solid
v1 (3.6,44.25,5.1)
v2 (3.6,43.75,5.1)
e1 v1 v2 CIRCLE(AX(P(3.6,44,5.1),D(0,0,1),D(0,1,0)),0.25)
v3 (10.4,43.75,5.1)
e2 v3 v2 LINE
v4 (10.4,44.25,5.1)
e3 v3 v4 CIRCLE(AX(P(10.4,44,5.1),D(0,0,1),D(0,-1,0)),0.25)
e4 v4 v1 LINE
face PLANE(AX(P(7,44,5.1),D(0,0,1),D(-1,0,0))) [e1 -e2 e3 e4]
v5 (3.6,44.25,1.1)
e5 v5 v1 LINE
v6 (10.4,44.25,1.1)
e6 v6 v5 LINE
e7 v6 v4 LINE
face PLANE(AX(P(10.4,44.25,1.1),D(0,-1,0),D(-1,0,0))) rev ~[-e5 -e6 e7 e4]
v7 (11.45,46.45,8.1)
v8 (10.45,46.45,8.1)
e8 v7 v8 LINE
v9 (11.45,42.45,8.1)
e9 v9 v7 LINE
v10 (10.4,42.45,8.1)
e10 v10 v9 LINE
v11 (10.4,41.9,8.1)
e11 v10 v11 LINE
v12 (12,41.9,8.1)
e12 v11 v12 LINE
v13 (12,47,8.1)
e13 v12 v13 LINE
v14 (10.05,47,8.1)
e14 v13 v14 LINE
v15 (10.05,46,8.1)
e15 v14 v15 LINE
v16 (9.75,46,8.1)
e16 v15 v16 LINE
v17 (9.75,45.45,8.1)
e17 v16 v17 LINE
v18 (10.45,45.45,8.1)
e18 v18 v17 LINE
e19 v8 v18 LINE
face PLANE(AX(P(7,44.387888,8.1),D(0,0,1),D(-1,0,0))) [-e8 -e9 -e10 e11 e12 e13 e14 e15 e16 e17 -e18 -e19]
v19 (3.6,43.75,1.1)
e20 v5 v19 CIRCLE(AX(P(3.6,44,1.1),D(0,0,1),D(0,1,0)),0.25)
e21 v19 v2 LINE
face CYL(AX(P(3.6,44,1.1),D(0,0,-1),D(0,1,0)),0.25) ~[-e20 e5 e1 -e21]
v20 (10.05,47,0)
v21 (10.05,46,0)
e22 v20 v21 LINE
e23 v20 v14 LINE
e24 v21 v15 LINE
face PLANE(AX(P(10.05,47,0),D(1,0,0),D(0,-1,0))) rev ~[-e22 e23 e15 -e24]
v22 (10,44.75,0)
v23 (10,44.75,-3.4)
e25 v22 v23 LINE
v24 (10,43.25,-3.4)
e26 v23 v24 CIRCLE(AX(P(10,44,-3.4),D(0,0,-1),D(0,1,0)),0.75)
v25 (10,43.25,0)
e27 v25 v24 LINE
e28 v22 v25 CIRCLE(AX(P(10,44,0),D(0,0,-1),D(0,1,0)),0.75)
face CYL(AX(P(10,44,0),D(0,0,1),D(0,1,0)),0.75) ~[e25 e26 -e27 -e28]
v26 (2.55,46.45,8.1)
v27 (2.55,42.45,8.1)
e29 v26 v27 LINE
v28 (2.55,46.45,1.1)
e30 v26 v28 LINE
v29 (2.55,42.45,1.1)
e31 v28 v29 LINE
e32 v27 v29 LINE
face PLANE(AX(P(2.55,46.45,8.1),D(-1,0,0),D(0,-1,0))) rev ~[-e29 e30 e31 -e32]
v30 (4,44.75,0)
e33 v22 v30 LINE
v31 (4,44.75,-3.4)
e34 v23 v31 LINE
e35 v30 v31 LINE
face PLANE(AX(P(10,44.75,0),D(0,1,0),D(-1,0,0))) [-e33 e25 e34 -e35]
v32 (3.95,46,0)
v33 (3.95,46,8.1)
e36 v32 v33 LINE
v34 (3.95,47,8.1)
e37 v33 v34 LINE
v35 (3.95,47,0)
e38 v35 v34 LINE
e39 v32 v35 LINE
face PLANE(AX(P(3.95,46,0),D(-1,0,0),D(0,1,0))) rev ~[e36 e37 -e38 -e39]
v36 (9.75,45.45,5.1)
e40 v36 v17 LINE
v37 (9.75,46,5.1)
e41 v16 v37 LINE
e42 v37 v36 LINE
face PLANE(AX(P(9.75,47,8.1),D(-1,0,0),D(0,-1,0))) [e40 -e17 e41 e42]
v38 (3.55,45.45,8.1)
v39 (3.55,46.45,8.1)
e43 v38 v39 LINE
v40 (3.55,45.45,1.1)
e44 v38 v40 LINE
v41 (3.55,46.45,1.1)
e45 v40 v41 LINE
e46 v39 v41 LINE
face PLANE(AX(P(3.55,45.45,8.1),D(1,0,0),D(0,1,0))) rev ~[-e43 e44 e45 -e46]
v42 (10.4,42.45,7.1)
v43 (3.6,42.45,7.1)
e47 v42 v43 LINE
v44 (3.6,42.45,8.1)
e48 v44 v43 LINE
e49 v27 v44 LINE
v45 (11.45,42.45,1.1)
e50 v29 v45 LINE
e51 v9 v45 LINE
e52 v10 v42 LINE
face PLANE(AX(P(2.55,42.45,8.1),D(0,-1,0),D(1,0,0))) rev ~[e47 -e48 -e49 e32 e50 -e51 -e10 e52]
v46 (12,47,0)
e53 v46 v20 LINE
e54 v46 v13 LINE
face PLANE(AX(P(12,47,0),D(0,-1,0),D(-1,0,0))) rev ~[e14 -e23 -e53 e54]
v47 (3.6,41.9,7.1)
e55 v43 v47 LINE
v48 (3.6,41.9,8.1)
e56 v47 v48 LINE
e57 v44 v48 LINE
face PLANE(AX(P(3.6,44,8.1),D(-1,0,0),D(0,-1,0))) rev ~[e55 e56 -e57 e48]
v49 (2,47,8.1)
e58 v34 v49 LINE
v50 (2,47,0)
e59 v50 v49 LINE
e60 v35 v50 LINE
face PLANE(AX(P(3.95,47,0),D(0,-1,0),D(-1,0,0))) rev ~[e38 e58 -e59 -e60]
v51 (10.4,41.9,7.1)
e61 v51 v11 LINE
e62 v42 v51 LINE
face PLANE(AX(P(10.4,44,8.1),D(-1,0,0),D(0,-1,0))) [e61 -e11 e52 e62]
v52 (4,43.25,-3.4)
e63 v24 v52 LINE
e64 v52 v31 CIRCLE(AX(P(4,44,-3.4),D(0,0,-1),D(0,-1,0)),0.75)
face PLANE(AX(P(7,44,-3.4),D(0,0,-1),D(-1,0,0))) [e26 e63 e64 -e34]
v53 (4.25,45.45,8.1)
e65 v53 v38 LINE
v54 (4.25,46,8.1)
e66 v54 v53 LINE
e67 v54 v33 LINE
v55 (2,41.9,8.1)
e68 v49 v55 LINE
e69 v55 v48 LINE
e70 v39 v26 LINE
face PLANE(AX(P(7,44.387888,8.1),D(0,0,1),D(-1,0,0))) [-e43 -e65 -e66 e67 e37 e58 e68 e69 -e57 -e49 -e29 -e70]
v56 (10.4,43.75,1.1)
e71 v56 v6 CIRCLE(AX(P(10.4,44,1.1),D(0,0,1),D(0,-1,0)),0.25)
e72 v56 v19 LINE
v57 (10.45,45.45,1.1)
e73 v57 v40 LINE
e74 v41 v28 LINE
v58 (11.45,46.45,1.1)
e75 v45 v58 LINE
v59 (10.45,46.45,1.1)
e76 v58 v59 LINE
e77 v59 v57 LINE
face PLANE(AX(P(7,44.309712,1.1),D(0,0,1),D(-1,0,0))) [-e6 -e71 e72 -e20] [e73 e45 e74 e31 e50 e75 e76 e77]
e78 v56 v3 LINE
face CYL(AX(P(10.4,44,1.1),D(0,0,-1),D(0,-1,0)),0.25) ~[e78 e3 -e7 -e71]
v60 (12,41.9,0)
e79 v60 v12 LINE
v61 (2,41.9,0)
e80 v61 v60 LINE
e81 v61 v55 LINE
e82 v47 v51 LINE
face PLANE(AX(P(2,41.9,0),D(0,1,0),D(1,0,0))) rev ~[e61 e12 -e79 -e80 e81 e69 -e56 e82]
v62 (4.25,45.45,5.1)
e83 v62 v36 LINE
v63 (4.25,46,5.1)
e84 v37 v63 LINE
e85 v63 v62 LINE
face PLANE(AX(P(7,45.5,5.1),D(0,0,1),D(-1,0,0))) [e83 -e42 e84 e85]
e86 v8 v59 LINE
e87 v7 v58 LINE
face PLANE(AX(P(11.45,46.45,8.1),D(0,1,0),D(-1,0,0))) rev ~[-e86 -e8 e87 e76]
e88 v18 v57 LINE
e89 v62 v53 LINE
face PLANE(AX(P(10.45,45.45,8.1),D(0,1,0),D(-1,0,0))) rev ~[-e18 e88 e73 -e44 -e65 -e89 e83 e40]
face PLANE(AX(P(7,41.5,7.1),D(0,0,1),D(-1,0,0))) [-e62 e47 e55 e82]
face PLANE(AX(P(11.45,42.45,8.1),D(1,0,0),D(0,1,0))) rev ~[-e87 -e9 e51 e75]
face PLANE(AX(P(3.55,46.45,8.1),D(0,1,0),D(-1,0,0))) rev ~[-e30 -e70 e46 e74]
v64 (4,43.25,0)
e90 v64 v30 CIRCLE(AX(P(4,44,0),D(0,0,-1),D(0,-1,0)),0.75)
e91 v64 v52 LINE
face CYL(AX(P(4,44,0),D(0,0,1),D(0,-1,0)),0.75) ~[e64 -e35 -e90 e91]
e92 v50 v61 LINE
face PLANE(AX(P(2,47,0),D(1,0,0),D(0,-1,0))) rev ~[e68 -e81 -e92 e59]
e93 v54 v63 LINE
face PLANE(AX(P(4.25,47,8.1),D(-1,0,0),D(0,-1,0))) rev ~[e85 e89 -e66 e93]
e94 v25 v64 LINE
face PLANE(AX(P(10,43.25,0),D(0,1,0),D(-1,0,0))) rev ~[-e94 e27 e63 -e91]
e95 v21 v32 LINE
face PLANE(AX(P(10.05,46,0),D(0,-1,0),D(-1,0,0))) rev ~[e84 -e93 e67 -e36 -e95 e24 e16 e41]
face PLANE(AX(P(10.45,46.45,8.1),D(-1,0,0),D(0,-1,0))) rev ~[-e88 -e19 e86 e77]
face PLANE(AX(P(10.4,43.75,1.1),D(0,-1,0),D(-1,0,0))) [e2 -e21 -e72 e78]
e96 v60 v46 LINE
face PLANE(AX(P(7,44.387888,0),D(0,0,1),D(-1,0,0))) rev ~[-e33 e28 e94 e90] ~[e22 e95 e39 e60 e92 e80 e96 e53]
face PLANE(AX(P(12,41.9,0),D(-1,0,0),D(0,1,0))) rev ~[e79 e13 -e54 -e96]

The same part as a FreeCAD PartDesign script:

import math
import FreeCAD as App
import Part
import Sketcher
from FreeCAD import Vector

doc = App.newDocument("Part")
params = doc.addObject("Spreadsheet::Sheet", "Params")
for row, (alias, value) in enumerate([
    ("sketch1_width", "10 mm"),
    ("sketch1_height", "1 mm"),
    ("sketch1_width2", "6.1 mm"),
    ("sketch1_height2", "5.1 mm"),
    ("pad1_length", "8.1 mm"),
    ("sketch2_width", "1 mm"),
    ("sketch2_height", "4 mm"),
    ("sketch2_width2", "6.9 mm"),
    ("pocket1_length", "7 mm"),
    ("sketch3_height", "5 mm"),
    ("sketch3_width", "6.8 mm"),
    ("pocket2_length", "1 mm"),
    ("sketch4_height", "3 mm"),
    ("sketch4_width", "5.5 mm"),
    ("pocket3_length", "3 mm"),
    ("sketch5_radius", "0.25 mm"),
    ("sketch5_width", "6.8 mm"),
    ("pad2_length", "4 mm"),
    ("sketch6_width", "6 mm"),
    ("sketch6_radius", "0.75 mm"),
    ("pad3_length", "3.4 mm"),
], start=1):
    params.set(f"A{row}", alias)
    params.set(f"B{row}", "=" + value)
    params.setAlias(f"B{row}", alias)

body = doc.addObject("PartDesign::Body", "Body")

sketch1 = body.newObject("Sketcher::SketchObject", "Sketch")
sketch1.AttachmentSupport = (doc.getObject("XY_Plane"), [""])
sketch1.MapMode = "FlatFace"
sketch1.addGeometry([
    Part.LineSegment(Vector(-5, 0, 0), Vector(-3, 0, 0)),
    Part.LineSegment(Vector(-3, 0, 0), Vector(-3, 1, 0)),
    Part.LineSegment(Vector(-3, 1, 0), Vector(3, 1, 0)),
    Part.LineSegment(Vector(3, 1, 0), Vector(3, 0, 0)),
    Part.LineSegment(Vector(3, 0, 0), Vector(5, 0, 0)),
    Part.LineSegment(Vector(5, 0, 0), Vector(5, 5.1, 0)),
    Part.LineSegment(Vector(5, 5.1, 0), Vector(-5, 5.1, 0)),
    Part.LineSegment(Vector(-5, 5.1, 0), Vector(-5, 0, 0)),
], False)
sketch1.addConstraint([
    Sketcher.Constraint("Coincident", 0, 2, 1, 1),
    Sketcher.Constraint("Coincident", 1, 2, 2, 1),
    Sketcher.Constraint("Coincident", 2, 2, 3, 1),
    Sketcher.Constraint("Coincident", 3, 2, 4, 1),
    Sketcher.Constraint("Coincident", 4, 2, 5, 1),
    Sketcher.Constraint("Coincident", 5, 2, 6, 1),
    Sketcher.Constraint("Coincident", 6, 2, 7, 1),
    Sketcher.Constraint("Coincident", 7, 2, 0, 1),
    Sketcher.Constraint("Horizontal", 0),
    Sketcher.Constraint("Vertical", 1),
    Sketcher.Constraint("Horizontal", 2),
    Sketcher.Constraint("Vertical", 3),
    Sketcher.Constraint("Horizontal", 4),
    Sketcher.Constraint("Vertical", 5),
    Sketcher.Constraint("Horizontal", 6),
    Sketcher.Constraint("Vertical", 7),
    Sketcher.Constraint("Symmetric", 0, 2, 3, 2, -1, 1),
    Sketcher.Constraint("Symmetric", 4, 2, 7, 2, -2),
    Sketcher.Constraint("DistanceX", 6, 2, 6, 1, 10.0),
    Sketcher.Constraint("DistanceY", 1, 1, 1, 2, 1.0),
    Sketcher.Constraint("DistanceX", 2, 1, 2, 2, 6.1),
    Sketcher.Constraint("DistanceY", 5, 1, 5, 2, 5.1),
])
sketch1.setExpression("Constraints[18]", "Params.sketch1_width")
sketch1.setExpression("Constraints[19]", "Params.sketch1_height")
sketch1.setExpression("Constraints[20]", "Params.sketch1_width2")
sketch1.setExpression("Constraints[21]", "Params.sketch1_height2")
pad1 = body.newObject("PartDesign::Pad", "Pad")
pad1.Profile = sketch1
pad1.setExpression("Length", "Params.pad1_length")

sketch2 = body.newObject("Sketcher::SketchObject", "Sketch001")
sketch2.AttachmentSupport = (doc.getObject("XY_Plane"), [""])
sketch2.MapMode = "FlatFace"
sketch2.AttachmentOffset = App.Placement(Vector(0, 0, 8.1), App.Rotation())
sketch2.addGeometry([
    Part.LineSegment(Vector(-4.5, 0.6, 0), Vector(-3.5, 0.6, 0)),
    Part.LineSegment(Vector(-3.5, 0.6, 0), Vector(-3.5, 1.6, 0)),
    Part.LineSegment(Vector(-3.5, 1.6, 0), Vector(3.5, 1.6, 0)),
    Part.LineSegment(Vector(3.5, 1.6, 0), Vector(3.5, 0.6, 0)),
    Part.LineSegment(Vector(3.5, 0.6, 0), Vector(4.5, 0.6, 0)),
    Part.LineSegment(Vector(4.5, 0.6, 0), Vector(4.5, 4.5, 0)),
    Part.LineSegment(Vector(4.5, 4.5, 0), Vector(-4.5, 4.5, 0)),
    Part.LineSegment(Vector(-4.5, 4.5, 0), Vector(-4.5, 0.6, 0)),
], False)
sketch2.addConstraint([
    Sketcher.Constraint("Coincident", 0, 2, 1, 1),
    Sketcher.Constraint("Coincident", 1, 2, 2, 1),
    Sketcher.Constraint("Coincident", 2, 2, 3, 1),
    Sketcher.Constraint("Coincident", 3, 2, 4, 1),
    Sketcher.Constraint("Coincident", 4, 2, 5, 1),
    Sketcher.Constraint("Coincident", 5, 2, 6, 1),
    Sketcher.Constraint("Coincident", 6, 2, 7, 1),
    Sketcher.Constraint("Coincident", 7, 2, 0, 1),
    Sketcher.Constraint("Horizontal", 0),
    Sketcher.Constraint("Vertical", 1),
    Sketcher.Constraint("Horizontal", 2),
    Sketcher.Constraint("Vertical", 3),
    Sketcher.Constraint("Horizontal", 4),
    Sketcher.Constraint("Vertical", 5),
    Sketcher.Constraint("Horizontal", 6),
    Sketcher.Constraint("Vertical", 7),
    Sketcher.Constraint("Symmetric", 0, 2, 3, 2, -2),
    Sketcher.Constraint("Equal", 0, 4),
    Sketcher.Constraint("Equal", 4, 1),
    Sketcher.Constraint("DistanceX", 0, 1, 0, 2, 1.0),
    Sketcher.Constraint("DistanceY", 5, 1, 5, 2, 4.0),
    Sketcher.Constraint("DistanceX", 2, 1, 2, 2, 6.9),
    Sketcher.Constraint("DistanceY", -1, 1, 0, 2, 0.55),
])
sketch2.setExpression("Constraints[19]", "Params.sketch2_width")
sketch2.setExpression("Constraints[20]", "Params.sketch2_height")
sketch2.setExpression("Constraints[21]", "Params.sketch2_width2")
pocket1 = body.newObject("PartDesign::Pocket", "Pocket")
pocket1.Profile = sketch2
pocket1.setExpression("Length", "Params.pocket1_length")

sketch3 = body.newObject("Sketcher::SketchObject", "Sketch002")
sketch3.AttachmentSupport = (doc.getObject("XY_Plane"), [""])
sketch3.MapMode = "FlatFace"
sketch3.AttachmentOffset = App.Placement(Vector(0, 0, 8.1), App.Rotation())
sketch3.addGeometry([
    Part.LineSegment(Vector(-3, 8, 0), Vector(-3, 3, 0)),
    Part.LineSegment(Vector(-3, 3, 0), Vector(3, 3, 0)),
    Part.LineSegment(Vector(3, 3, 0), Vector(3, 8, 0)),
    Part.LineSegment(Vector(3, 8, 0), Vector(-3, 8, 0)),
], False)
sketch3.addConstraint([
    Sketcher.Constraint("Coincident", 0, 2, 1, 1),
    Sketcher.Constraint("Coincident", 1, 2, 2, 1),
    Sketcher.Constraint("Coincident", 2, 2, 3, 1),
    Sketcher.Constraint("Coincident", 3, 2, 0, 1),
    Sketcher.Constraint("Vertical", 0),
    Sketcher.Constraint("Horizontal", 1),
    Sketcher.Constraint("Vertical", 2),
    Sketcher.Constraint("Horizontal", 3),
    Sketcher.Constraint("DistanceY", 0, 2, 0, 1, 5.0),
    Sketcher.Constraint("DistanceX", 1, 1, 1, 2, 6.8),
    Sketcher.Constraint("DistanceY", -1, 1, 0, 2, 3.0),
    Sketcher.Constraint("DistanceX", 0, 2, -1, 1, 3.4),
])
sketch3.setExpression("Constraints[8]", "Params.sketch3_height")
sketch3.setExpression("Constraints[9]", "Params.sketch3_width")
pocket2 = body.newObject("PartDesign::Pocket", "Pocket001")
pocket2.Profile = sketch3
pocket2.setExpression("Length", "Params.pocket2_length")

sketch4 = body.newObject("Sketcher::SketchObject", "Sketch003")
sketch4.AttachmentSupport = (doc.getObject("XY_Plane"), [""])
sketch4.MapMode = "FlatFace"
sketch4.AttachmentOffset = App.Placement(Vector(0, 0, 8.1), App.Rotation())
sketch4.addGeometry([
    Part.LineSegment(Vector(-2.8, 3, 0), Vector(-2.8, 0, 0)),
    Part.LineSegment(Vector(-2.8, 0, 0), Vector(2.8, 0, 0)),
    Part.LineSegment(Vector(2.8, 0, 0), Vector(2.8, 3, 0)),
    Part.LineSegment(Vector(2.8, 3, 0), Vector(-2.8, 3, 0)),
], False)
sketch4.addConstraint([
    Sketcher.Constraint("Coincident", 0, 2, 1, 1),
    Sketcher.Constraint("Coincident", 1, 2, 2, 1),
    Sketcher.Constraint("Coincident", 2, 2, 3, 1),
    Sketcher.Constraint("Coincident", 3, 2, 0, 1),
    Sketcher.Constraint("Vertical", 0),
    Sketcher.Constraint("Horizontal", 1),
    Sketcher.Constraint("Vertical", 2),
    Sketcher.Constraint("Horizontal", 3),
    Sketcher.Constraint("Symmetric", 0, 2, 1, 2, -1, 1),
    Sketcher.Constraint("DistanceY", 0, 2, 0, 1, 3.0),
    Sketcher.Constraint("DistanceX", 1, 1, 1, 2, 5.5),
])
sketch4.setExpression("Constraints[9]", "Params.sketch4_height")
sketch4.setExpression("Constraints[10]", "Params.sketch4_width")
pocket3 = body.newObject("PartDesign::Pocket", "Pocket002")
pocket3.Profile = sketch4
pocket3.setExpression("Length", "Params.pocket3_length")

sketch5 = body.newObject("Sketcher::SketchObject", "Sketch004")
sketch5.AttachmentSupport = (doc.getObject("XY_Plane"), [""])
sketch5.MapMode = "FlatFace"
sketch5.AttachmentOffset = App.Placement(Vector(0, 0, 1.1), App.Rotation())
sketch5.addGeometry([
    Part.ArcOfCircle(Part.Circle(Vector(-3.4, 3, 0), Vector(0, 0, 1), 0.25), math.radians(90), math.radians(270)),
    Part.LineSegment(Vector(-3.4, 2.75, 0), Vector(3.4, 2.75, 0)),
    Part.ArcOfCircle(Part.Circle(Vector(3.4, 3, 0), Vector(0, 0, 1), 0.25), math.radians(-90), math.radians(90)),
    Part.LineSegment(Vector(3.4, 3.25, 0), Vector(-3.4, 3.25, 0)),
], False)
sketch5.addConstraint([
    Sketcher.Constraint("Tangent", 0, 2, 1, 1),
    Sketcher.Constraint("Tangent", 1, 2, 2, 1),
    Sketcher.Constraint("Tangent", 2, 2, 3, 1),
    Sketcher.Constraint("Tangent", 3, 2, 0, 1),
    Sketcher.Constraint("Horizontal", 1),
    Sketcher.Constraint("Horizontal", 3),
    Sketcher.Constraint("Radius", 0, 0.25),
    Sketcher.Constraint("DistanceX", 1, 1, 1, 2, 6.8),
    Sketcher.Constraint("DistanceY", -1, 1, 0, 3, 3.0),
    Sketcher.Constraint("DistanceX", 0, 3, -1, 1, 3.4),
])
sketch5.setExpression("Constraints[6]", "Params.sketch5_radius")
sketch5.setExpression("Constraints[7]", "Params.sketch5_width")
pad2 = body.newObject("PartDesign::Pad", "Pad001")
pad2.Profile = sketch5
pad2.setExpression("Length", "Params.pad2_length")

sketch6 = body.newObject("Sketcher::SketchObject", "Sketch005")
sketch6.AttachmentSupport = (doc.getObject("XY_Plane"), [""])
sketch6.MapMode = "FlatFace"
sketch6.addGeometry([
    Part.ArcOfCircle(Part.Circle(Vector(-3, 3, 0), Vector(0, 0, 1), 0.8), math.radians(90), math.radians(270)),
    Part.LineSegment(Vector(-3, 3.8, 0), Vector(3, 3.8, 0)),
    Part.ArcOfCircle(Part.Circle(Vector(3, 3, 0), Vector(0, 0, 1), 0.8), math.radians(-90), math.radians(90)),
    Part.LineSegment(Vector(3, 2.2, 0), Vector(-3, 2.2, 0)),
], False)
sketch6.addConstraint([
    Sketcher.Constraint("Tangent", 0, 1, 1, 1),
    Sketcher.Constraint("Tangent", 1, 2, 2, 2),
    Sketcher.Constraint("Tangent", 2, 1, 3, 1),
    Sketcher.Constraint("Tangent", 3, 2, 0, 2),
    Sketcher.Constraint("Horizontal", 1),
    Sketcher.Constraint("Horizontal", 3),
    Sketcher.Constraint("DistanceX", 1, 1, 1, 2, 6.0),
    Sketcher.Constraint("Radius", 0, 0.75),
    Sketcher.Constraint("DistanceX", 0, 3, -1, 1, 3.0),
    Sketcher.Constraint("DistanceY", -1, 1, 0, 3, 3.0),
])
sketch6.setExpression("Constraints[6]", "Params.sketch6_width")
sketch6.setExpression("Constraints[7]", "Params.sketch6_radius")
pad3 = body.newObject("PartDesign::Pad", "Pad002")
pad3.Profile = sketch6
pad3.setExpression("Length", "Params.pad3_length")
pad3.Reversed = True
body2 = doc.addObject("PartDesign::Body", "Body001")
doc.recompute()

body.Placement = App.Placement(Vector(-7, 29, 0), App.Rotation(Vector(0, 0, 1), 180))
boolean = body2.newObject("PartDesign::Boolean", "Boolean")
boolean.Type = "Fuse"
boolean.addObjects([body])
body3 = doc.addObject("PartDesign::Body", "Body002")
doc.recompute()

body2.Placement = App.Placement(Vector(14, 18, 0), App.Rotation(Vector(0, 0, 1), 0))
boolean2 = body3.newObject("PartDesign::Boolean", "Boolean001")
boolean2.Type = "Fuse"
boolean2.addObjects([body2])

doc.recompute()
